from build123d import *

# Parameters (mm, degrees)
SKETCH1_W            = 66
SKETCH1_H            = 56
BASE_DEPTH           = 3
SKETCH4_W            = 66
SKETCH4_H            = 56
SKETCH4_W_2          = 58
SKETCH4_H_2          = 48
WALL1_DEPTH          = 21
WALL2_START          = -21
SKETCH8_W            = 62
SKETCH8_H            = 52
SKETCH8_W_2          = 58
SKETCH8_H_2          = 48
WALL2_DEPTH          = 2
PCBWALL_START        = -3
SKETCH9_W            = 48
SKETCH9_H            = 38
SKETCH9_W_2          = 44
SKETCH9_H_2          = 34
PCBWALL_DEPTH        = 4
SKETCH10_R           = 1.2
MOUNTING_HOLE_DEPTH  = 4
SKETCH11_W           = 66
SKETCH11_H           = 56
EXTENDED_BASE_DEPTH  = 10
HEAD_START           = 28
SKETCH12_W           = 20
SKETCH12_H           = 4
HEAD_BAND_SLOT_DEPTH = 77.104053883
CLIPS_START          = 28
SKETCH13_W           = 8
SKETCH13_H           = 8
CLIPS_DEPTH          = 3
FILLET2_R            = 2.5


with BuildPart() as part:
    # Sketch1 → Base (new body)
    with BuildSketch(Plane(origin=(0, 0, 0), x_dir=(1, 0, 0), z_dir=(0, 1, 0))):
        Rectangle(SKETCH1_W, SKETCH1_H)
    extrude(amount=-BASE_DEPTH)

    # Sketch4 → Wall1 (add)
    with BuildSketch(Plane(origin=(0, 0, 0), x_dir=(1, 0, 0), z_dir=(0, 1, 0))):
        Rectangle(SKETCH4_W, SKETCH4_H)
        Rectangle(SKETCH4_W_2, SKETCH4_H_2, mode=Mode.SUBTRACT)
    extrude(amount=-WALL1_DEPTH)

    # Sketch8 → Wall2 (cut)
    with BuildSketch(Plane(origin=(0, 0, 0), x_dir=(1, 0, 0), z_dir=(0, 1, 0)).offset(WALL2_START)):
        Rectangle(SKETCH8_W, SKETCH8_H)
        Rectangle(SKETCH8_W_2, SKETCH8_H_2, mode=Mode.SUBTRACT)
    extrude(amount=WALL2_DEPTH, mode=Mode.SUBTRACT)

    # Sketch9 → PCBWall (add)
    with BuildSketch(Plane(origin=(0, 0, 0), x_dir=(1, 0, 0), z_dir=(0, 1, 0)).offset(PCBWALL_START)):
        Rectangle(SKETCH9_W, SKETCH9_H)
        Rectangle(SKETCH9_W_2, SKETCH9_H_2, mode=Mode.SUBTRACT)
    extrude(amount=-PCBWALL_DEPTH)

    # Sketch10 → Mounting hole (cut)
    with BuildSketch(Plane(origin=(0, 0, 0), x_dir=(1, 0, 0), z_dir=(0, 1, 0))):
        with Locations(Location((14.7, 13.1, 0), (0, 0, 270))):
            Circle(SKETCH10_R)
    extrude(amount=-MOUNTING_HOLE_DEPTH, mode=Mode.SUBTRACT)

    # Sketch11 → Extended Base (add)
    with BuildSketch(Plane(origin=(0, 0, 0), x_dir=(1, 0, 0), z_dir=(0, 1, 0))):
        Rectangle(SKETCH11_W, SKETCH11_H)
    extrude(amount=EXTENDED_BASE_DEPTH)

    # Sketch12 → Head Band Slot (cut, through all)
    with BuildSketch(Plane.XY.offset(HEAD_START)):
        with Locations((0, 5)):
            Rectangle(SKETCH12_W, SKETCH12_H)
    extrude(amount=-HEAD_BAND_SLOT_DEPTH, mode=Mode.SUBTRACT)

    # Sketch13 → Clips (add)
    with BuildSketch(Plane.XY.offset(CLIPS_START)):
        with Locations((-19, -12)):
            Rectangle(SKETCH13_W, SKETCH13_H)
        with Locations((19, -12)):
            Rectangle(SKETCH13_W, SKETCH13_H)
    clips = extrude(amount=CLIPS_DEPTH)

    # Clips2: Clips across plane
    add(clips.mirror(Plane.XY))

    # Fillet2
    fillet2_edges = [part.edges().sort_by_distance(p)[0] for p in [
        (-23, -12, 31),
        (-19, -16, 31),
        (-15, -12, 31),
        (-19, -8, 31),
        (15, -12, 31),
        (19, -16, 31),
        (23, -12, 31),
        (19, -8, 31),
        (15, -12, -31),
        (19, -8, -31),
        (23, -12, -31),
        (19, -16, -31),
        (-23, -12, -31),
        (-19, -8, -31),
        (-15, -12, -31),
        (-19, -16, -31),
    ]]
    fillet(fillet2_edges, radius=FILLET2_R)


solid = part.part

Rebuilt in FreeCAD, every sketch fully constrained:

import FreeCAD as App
import Part
import Sketcher
Q = App.Units.Quantity


def edges_at(feature, points):
    """Names of the edges that pass closest to the given points."""
    edges = feature.Shape.Edges
    near = lambda p: min(range(len(edges)), key=lambda i: edges[i].distToShape(Part.Vertex(*p))[0])
    return sorted({f"Edge{near(p) + 1}" for p in points})

doc = App.newDocument("Part")
params = doc.addObject("Spreadsheet::Sheet", "Params")
for row, (alias, value) in enumerate([
    ("sketch1_width", "66 mm"),
    ("sketch1_height", "56 mm"),
    ("pad1_length", "3 mm"),
    ("sketch2_width", "66 mm"),
    ("sketch2_width2", "58 mm"),
    ("sketch2_height", "56 mm"),
    ("sketch2_height2", "48 mm"),
    ("pad2_length", "21 mm"),
    ("sketch3_width", "62 mm"),
    ("sketch3_width2", "58 mm"),
    ("sketch3_height", "52 mm"),
    ("sketch3_height2", "48 mm"),
    ("pocket1_length", "2 mm"),
    ("sketch4_width", "48 mm"),
    ("sketch4_width2", "44 mm"),
    ("sketch4_height", "38 mm"),
    ("sketch4_height2", "34 mm"),
    ("pad3_length", "4 mm"),
    ("sketch5_diameter", "2.4 mm"),
    ("pocket2_length", "4 mm"),
    ("sketch6_width", "66 mm"),
    ("sketch6_height", "56 mm"),
    ("pad4_length", "10 mm"),
    ("sketch7_width", "20 mm"),
    ("sketch7_height", "4 mm"),
    ("sketch8_width", "8 mm"),
    ("pad5_length", "3 mm"),
    ("fillet_radius", "2.5 mm"),
], start=1):
    params.set(f"A{row}", alias)
    params.set(f"B{row}", "=" + value)
    params.setAlias(f"B{row}", alias)

body = doc.addObject("PartDesign::Body", "Body")

# Sketch on XZ plane
sketch1 = body.newObject("Sketcher::SketchObject", "Sketch")
sketch1.AttachmentSupport = (doc.getObject("XZ_Plane"), [""])
sketch1.MapMode = "FlatFace"
sketch1.addGeometry([
    Part.LineSegment(App.Vector(-33, -28, 0), App.Vector(-33, 28, 0)),
    Part.LineSegment(App.Vector(-33, 28, 0), App.Vector(33, 28, 0)),
    Part.LineSegment(App.Vector(33, 28, 0), App.Vector(33, -28, 0)),
    Part.LineSegment(App.Vector(33, -28, 0), App.Vector(-33, -28, 0)),
], False)
sketch1.addConstraint([
    Sketcher.Constraint("Coincident", 0, 2, 1, 1),
    Sketcher.Constraint("Coincident", 1, 2, 2, 1),
    Sketcher.Constraint("Coincident", 2, 2, 3, 1),
    Sketcher.Constraint("Coincident", 3, 2, 0, 1),
    Sketcher.Constraint("Vertical", 0),
    Sketcher.Constraint("Horizontal", 1),
    Sketcher.Constraint("Vertical", 2),
    Sketcher.Constraint("Horizontal", 3),
    Sketcher.Constraint("Symmetric", 0, 2, 2, 2, -1, 1),
    Sketcher.Constraint("DistanceX", 1, 1, 1, 2, Q("66 mm")),
    Sketcher.Constraint("DistanceY", 0, 1, 0, 2, Q("56 mm")),
])
sketch1.setExpression("Constraints[9]", "Params.sketch1_width")
sketch1.setExpression("Constraints[10]", "Params.sketch1_height")
pad1 = body.newObject("PartDesign::Pad", "Pad")
pad1.Profile = sketch1
pad1.setExpression("Length", "Params.pad1_length")

# Sketch on XZ plane
sketch2 = body.newObject("Sketcher::SketchObject", "Sketch001")
sketch2.AttachmentSupport = (doc.getObject("XZ_Plane"), [""])
sketch2.MapMode = "FlatFace"
sketch2.addGeometry([
    Part.LineSegment(App.Vector(-33, -28, 0), App.Vector(-33, 28, 0)),  # 0
    Part.LineSegment(App.Vector(-33, 28, 0), App.Vector(33, 28, 0)),  # 1
    Part.LineSegment(App.Vector(33, 28, 0), App.Vector(33, -28, 0)),  # 2
    Part.LineSegment(App.Vector(33, -28, 0), App.Vector(-33, -28, 0)),  # 3
    Part.LineSegment(App.Vector(29, 24, 0), App.Vector(-29, 24, 0)),  # 4
    Part.LineSegment(App.Vector(-29, 24, 0), App.Vector(-29, -24, 0)),  # 5
    Part.LineSegment(App.Vector(-29, -24, 0), App.Vector(29, -24, 0)),  # 6
    Part.LineSegment(App.Vector(29, -24, 0), App.Vector(29, 24, 0)),  # 7
], False)
sketch2.addConstraint([
    Sketcher.Constraint("Coincident", 0, 2, 1, 1),
    Sketcher.Constraint("Coincident", 1, 2, 2, 1),
    Sketcher.Constraint("Coincident", 2, 2, 3, 1),
    Sketcher.Constraint("Coincident", 3, 2, 0, 1),
    Sketcher.Constraint("Coincident", 4, 2, 5, 1),
    Sketcher.Constraint("Coincident", 5, 2, 6, 1),
    Sketcher.Constraint("Coincident", 6, 2, 7, 1),
    Sketcher.Constraint("Coincident", 7, 2, 4, 1),
    Sketcher.Constraint("Vertical", 0),
    Sketcher.Constraint("Horizontal", 1),
    Sketcher.Constraint("Vertical", 2),
    Sketcher.Constraint("Horizontal", 3),
    Sketcher.Constraint("Horizontal", 4),
    Sketcher.Constraint("Vertical", 5),
    Sketcher.Constraint("Horizontal", 6),
    Sketcher.Constraint("Vertical", 7),
    Sketcher.Constraint("Symmetric", 0, 2, 2, 2, -1, 1),
    Sketcher.Constraint("Symmetric", 4, 2, 6, 2, -1, 1),
    Sketcher.Constraint("DistanceX", 1, 1, 1, 2, Q("66 mm")),
    Sketcher.Constraint("DistanceX", 4, 2, 4, 1, Q("58 mm")),
    Sketcher.Constraint("DistanceY", 0, 1, 0, 2, Q("56 mm")),
    Sketcher.Constraint("DistanceY", 5, 2, 5, 1, Q("48 mm")),
])
sketch2.setExpression("Constraints[18]", "Params.sketch2_width")
sketch2.setExpression("Constraints[19]", "Params.sketch2_width2")
sketch2.setExpression("Constraints[20]", "Params.sketch2_height")
sketch2.setExpression("Constraints[21]", "Params.sketch2_height2")
pad2 = body.newObject("PartDesign::Pad", "Pad001")
pad2.Profile = sketch2
pad2.setExpression("Length", "Params.pad2_length")

# Sketch on XZ plane
sketch3 = body.newObject("Sketcher::SketchObject", "Sketch002")
sketch3.AttachmentSupport = (doc.getObject("XZ_Plane"), [""])
sketch3.MapMode = "FlatFace"
sketch3.AttachmentOffset = App.Placement(App.Vector(0, 0, 21), App.Rotation())
sketch3.addGeometry([
    Part.LineSegment(App.Vector(-31, -26, 0), App.Vector(-31, 26, 0)),  # 0
    Part.LineSegment(App.Vector(-31, 26, 0), App.Vector(31, 26, 0)),  # 1
    Part.LineSegment(App.Vector(31, 26, 0), App.Vector(31, -26, 0)),  # 2
    Part.LineSegment(App.Vector(31, -26, 0), App.Vector(-31, -26, 0)),  # 3
    Part.LineSegment(App.Vector(29, 24, 0), App.Vector(-29, 24, 0)),  # 4
    Part.LineSegment(App.Vector(-29, 24, 0), App.Vector(-29, -24, 0)),  # 5
    Part.LineSegment(App.Vector(-29, -24, 0), App.Vector(29, -24, 0)),  # 6
    Part.LineSegment(App.Vector(29, -24, 0), App.Vector(29, 24, 0)),  # 7
], False)
sketch3.addConstraint([
    Sketcher.Constraint("Coincident", 0, 2, 1, 1),
    Sketcher.Constraint("Coincident", 1, 2, 2, 1),
    Sketcher.Constraint("Coincident", 2, 2, 3, 1),
    Sketcher.Constraint("Coincident", 3, 2, 0, 1),
    Sketcher.Constraint("Coincident", 4, 2, 5, 1),
    Sketcher.Constraint("Coincident", 5, 2, 6, 1),
    Sketcher.Constraint("Coincident", 6, 2, 7, 1),
    Sketcher.Constraint("Coincident", 7, 2, 4, 1),
    Sketcher.Constraint("Vertical", 0),
    Sketcher.Constraint("Horizontal", 1),
    Sketcher.Constraint("Vertical", 2),
    Sketcher.Constraint("Horizontal", 3),
    Sketcher.Constraint("Horizontal", 4),
    Sketcher.Constraint("Vertical", 5),
    Sketcher.Constraint("Horizontal", 6),
    Sketcher.Constraint("Vertical", 7),
    Sketcher.Constraint("Symmetric", 0, 2, 2, 2, -1, 1),
    Sketcher.Constraint("Symmetric", 4, 2, 6, 2, -1, 1),
    Sketcher.Constraint("DistanceX", 1, 1, 1, 2, Q("62 mm")),
    Sketcher.Constraint("DistanceX", 4, 2, 4, 1, Q("58 mm")),
    Sketcher.Constraint("DistanceY", 0, 1, 0, 2, Q("52 mm")),
    Sketcher.Constraint("DistanceY", 5, 2, 5, 1, Q("48 mm")),
])
sketch3.setExpression("Constraints[18]", "Params.sketch3_width")
sketch3.setExpression("Constraints[19]", "Params.sketch3_width2")
sketch3.setExpression("Constraints[20]", "Params.sketch3_height")
sketch3.setExpression("Constraints[21]", "Params.sketch3_height2")
pocket1 = body.newObject("PartDesign::Pocket", "Pocket")
pocket1.Profile = sketch3
pocket1.setExpression("Length", "Params.pocket1_length")

# Sketch on XZ plane
sketch4 = body.newObject("Sketcher::SketchObject", "Sketch003")
sketch4.AttachmentSupport = (doc.getObject("XZ_Plane"), [""])
sketch4.MapMode = "FlatFace"
sketch4.AttachmentOffset = App.Placement(App.Vector(0, 0, 3), App.Rotation())
sketch4.addGeometry([
    Part.LineSegment(App.Vector(-24, -19, 0), App.Vector(-24, 19, 0)),  # 0
    Part.LineSegment(App.Vector(-24, 19, 0), App.Vector(24, 19, 0)),  # 1
    Part.LineSegment(App.Vector(24, 19, 0), App.Vector(24, -19, 0)),  # 2
    Part.LineSegment(App.Vector(24, -19, 0), App.Vector(-24, -19, 0)),  # 3
    Part.LineSegment(App.Vector(22, 17, 0), App.Vector(-22, 17, 0)),  # 4
    Part.LineSegment(App.Vector(-22, 17, 0), App.Vector(-22, -17, 0)),  # 5
    Part.LineSegment(App.Vector(-22, -17, 0), App.Vector(22, -17, 0)),  # 6
    Part.LineSegment(App.Vector(22, -17, 0), App.Vector(22, 17, 0)),  # 7
], False)
sketch4.addConstraint([
    Sketcher.Constraint("Coincident", 0, 2, 1, 1),
    Sketcher.Constraint("Coincident", 1, 2, 2, 1),
    Sketcher.Constraint("Coincident", 2, 2, 3, 1),
    Sketcher.Constraint("Coincident", 3, 2, 0, 1),
    Sketcher.Constraint("Coincident", 4, 2, 5, 1),
    Sketcher.Constraint("Coincident", 5, 2, 6, 1),
    Sketcher.Constraint("Coincident", 6, 2, 7, 1),
    Sketcher.Constraint("Coincident", 7, 2, 4, 1),
    Sketcher.Constraint("Vertical", 0),
    Sketcher.Constraint("Horizontal", 1),
    Sketcher.Constraint("Vertical", 2),
    Sketcher.Constraint("Horizontal", 3),
    Sketcher.Constraint("Horizontal", 4),
    Sketcher.Constraint("Vertical", 5),
    Sketcher.Constraint("Horizontal", 6),
    Sketcher.Constraint("Vertical", 7),
    Sketcher.Constraint("Symmetric", 0, 2, 2, 2, -1, 1),
    Sketcher.Constraint("Symmetric", 4, 2, 6, 2, -1, 1),
    Sketcher.Constraint("DistanceX", 1, 1, 1, 2, Q("48 mm")),
    Sketcher.Constraint("DistanceX", 4, 2, 4, 1, Q("44 mm")),
    Sketcher.Constraint("DistanceY", 0, 1, 0, 2, Q("38 mm")),
    Sketcher.Constraint("DistanceY", 5, 2, 5, 1, Q("34 mm")),
])
sketch4.setExpression("Constraints[18]", "Params.sketch4_width")
sketch4.setExpression("Constraints[19]", "Params.sketch4_width2")
sketch4.setExpression("Constraints[20]", "Params.sketch4_height")
sketch4.setExpression("Constraints[21]", "Params.sketch4_height2")
pad3 = body.newObject("PartDesign::Pad", "Pad002")
pad3.Profile = sketch4
pad3.setExpression("Length", "Params.pad3_length")

# Sketch on XZ plane
sketch5 = body.newObject("Sketcher::SketchObject", "Sketch004")
sketch5.AttachmentSupport = (doc.getObject("XZ_Plane"), [""])
sketch5.MapMode = "FlatFace"
sketch5.addGeometry(Part.Circle(App.Vector(14.7, -13.1, 0), App.Vector(0, 0, 1), 1.2), False)
sketch5.addConstraint([
    Sketcher.Constraint("Diameter", 0, Q("2.4 mm")),
    Sketcher.Constraint("DistanceX", -1, 1, 0, 3, Q("14.7 mm")),
    Sketcher.Constraint("DistanceY", 0, 3, -1, 1, Q("13.1 mm")),
])
sketch5.setExpression("Constraints[0]", "Params.sketch5_diameter")
pocket2 = body.newObject("PartDesign::Pocket", "Pocket001")
pocket2.Profile = sketch5
pocket2.setExpression("Length", "Params.pocket2_length")
pocket2.Reversed = True

# Sketch on XZ plane
sketch6 = body.newObject("Sketcher::SketchObject", "Sketch005")
sketch6.AttachmentSupport = (doc.getObject("XZ_Plane"), [""])
sketch6.MapMode = "FlatFace"
sketch6.addGeometry([
    Part.LineSegment(App.Vector(-33, -28, 0), App.Vector(-33, 28, 0)),
    Part.LineSegment(App.Vector(-33, 28, 0), App.Vector(33, 28, 0)),
    Part.LineSegment(App.Vector(33, 28, 0), App.Vector(33, -28, 0)),
    Part.LineSegment(App.Vector(33, -28, 0), App.Vector(-33, -28, 0)),
], False)
sketch6.addConstraint([
    Sketcher.Constraint("Coincident", 0, 2, 1, 1),
    Sketcher.Constraint("Coincident", 1, 2, 2, 1),
    Sketcher.Constraint("Coincident", 2, 2, 3, 1),
    Sketcher.Constraint("Coincident", 3, 2, 0, 1),
    Sketcher.Constraint("Vertical", 0),
    Sketcher.Constraint("Horizontal", 1),
    Sketcher.Constraint("Vertical", 2),
    Sketcher.Constraint("Horizontal", 3),
    Sketcher.Constraint("Symmetric", 0, 2, 2, 2, -1, 1),
    Sketcher.Constraint("DistanceX", 1, 1, 1, 2, Q("66 mm")),
    Sketcher.Constraint("DistanceY", 0, 1, 0, 2, Q("56 mm")),
])
sketch6.setExpression("Constraints[9]", "Params.sketch6_width")
sketch6.setExpression("Constraints[10]", "Params.sketch6_height")
pad4 = body.newObject("PartDesign::Pad", "Pad003")
pad4.Profile = sketch6
pad4.setExpression("Length", "Params.pad4_length")
pad4.Reversed = True

# Sketch on XY plane
sketch7 = body.newObject("Sketcher::SketchObject", "Sketch006")
sketch7.AttachmentSupport = (doc.getObject("XY_Plane"), [""])
sketch7.MapMode = "FlatFace"
sketch7.AttachmentOffset = App.Placement(App.Vector(0, 0, 28), App.Rotation())
sketch7.addGeometry([
    Part.LineSegment(App.Vector(-10, 7, 0), App.Vector(-10, 3, 0)),
    Part.LineSegment(App.Vector(-10, 3, 0), App.Vector(10, 3, 0)),
    Part.LineSegment(App.Vector(10, 3, 0), App.Vector(10, 7, 0)),
    Part.LineSegment(App.Vector(10, 7, 0), App.Vector(-10, 7, 0)),
], False)
sketch7.addConstraint([
    Sketcher.Constraint("Coincident", 0, 2, 1, 1),
    Sketcher.Constraint("Coincident", 1, 2, 2, 1),
    Sketcher.Constraint("Coincident", 2, 2, 3, 1),
    Sketcher.Constraint("Coincident", 3, 2, 0, 1),
    Sketcher.Constraint("Vertical", 0),
    Sketcher.Constraint("Horizontal", 1),
    Sketcher.Constraint("Vertical", 2),
    Sketcher.Constraint("Horizontal", 3),
    Sketcher.Constraint("DistanceX", 1, 1, 1, 2, Q("20 mm")),
    Sketcher.Constraint("DistanceY", 0, 2, 0, 1, Q("4 mm")),
    Sketcher.Constraint("DistanceX", 0, 2, -1, 1, Q("10 mm")),
    Sketcher.Constraint("DistanceY", -1, 1, 0, 2, Q("3 mm")),
])
sketch7.setExpression("Constraints[8]", "Params.sketch7_width")
sketch7.setExpression("Constraints[9]", "Params.sketch7_height")
pocket3 = body.newObject("PartDesign::Pocket", "Pocket002")
pocket3.Profile = sketch7
pocket3.Type = "ThroughAll"

# Sketch on XY plane
sketch8 = body.newObject("Sketcher::SketchObject", "Sketch007")
sketch8.AttachmentSupport = (doc.getObject("XY_Plane"), [""])
sketch8.MapMode = "FlatFace"
sketch8.AttachmentOffset = App.Placement(App.Vector(0, 0, 28), App.Rotation())
sketch8.addGeometry([
    Part.LineSegment(App.Vector(-23, -8, 0), App.Vector(-23, -16, 0)),  # 0
    Part.LineSegment(App.Vector(-23, -16, 0), App.Vector(-15, -16, 0)),  # 1
    Part.LineSegment(App.Vector(-15, -16, 0), App.Vector(-15, -8, 0)),  # 2
    Part.LineSegment(App.Vector(-15, -8, 0), App.Vector(-23, -8, 0)),  # 3
    Part.LineSegment(App.Vector(15, -8, 0), App.Vector(15, -16, 0)),  # 4
    Part.LineSegment(App.Vector(15, -16, 0), App.Vector(23, -16, 0)),  # 5
    Part.LineSegment(App.Vector(23, -16, 0), App.Vector(23, -8, 0)),  # 6
    Part.LineSegment(App.Vector(23, -8, 0), App.Vector(15, -8, 0)),  # 7
], False)
sketch8.addConstraint([
    Sketcher.Constraint("Coincident", 0, 2, 1, 1),
    Sketcher.Constraint("Coincident", 1, 2, 2, 1),
    Sketcher.Constraint("Coincident", 2, 2, 3, 1),
    Sketcher.Constraint("Coincident", 3, 2, 0, 1),
    Sketcher.Constraint("Coincident", 4, 2, 5, 1),
    Sketcher.Constraint("Coincident", 5, 2, 6, 1),
    Sketcher.Constraint("Coincident", 6, 2, 7, 1),
    Sketcher.Constraint("Coincident", 7, 2, 4, 1),
    Sketcher.Constraint("Vertical", 0),
    Sketcher.Constraint("Horizontal", 1),
    Sketcher.Constraint("Vertical", 2),
    Sketcher.Constraint("Horizontal", 3),
    Sketcher.Constraint("Vertical", 4),
    Sketcher.Constraint("Horizontal", 5),
    Sketcher.Constraint("Vertical", 6),
    Sketcher.Constraint("Horizontal", 7),
    Sketcher.Constraint("Symmetric", 1, 2, 4, 2, -2),
    Sketcher.Constraint("Symmetric", 3, 2, 6, 2, -2),
    Sketcher.Constraint("Equal", 7, 0),
    Sketcher.Constraint("DistanceX", 1, 1, 1, 2, Q("8 mm")),
    Sketcher.Constraint("DistanceX", 0, 2, -1, 1, Q("23 mm")),
    Sketcher.Constraint("DistanceY", 0, 2, -1, 1, Q("16 mm")),
])
sketch8.setExpression("Constraints[19]", "Params.sketch8_width")
pad5 = body.newObject("PartDesign::Pad", "Pad004")
pad5.Profile = sketch8
pad5.setExpression("Length", "Params.pad5_length")
doc.recompute()

mirrored = body.newObject("PartDesign::Mirrored", "Mirrored")
mirrored.Originals = [pad5]
mirrored.MirrorPlane = (doc.getObject("XY_Plane"), [""])
body.Tip = mirrored
doc.recompute()

fillet = body.newObject("PartDesign::Fillet", "Fillet")
fillet.Base = (mirrored, edges_at(mirrored, [
    (-23, -12, 31),
    (-19, -16, 31),
    (-15, -12, 31),
    (-19, -8, 31),
    (15, -12, 31),
    (19, -16, 31),
    (23, -12, 31),
    (19, -8, 31),
    (15, -12, -31),
    (19, -8, -31),
    (23, -12, -31),
    (19, -16, -31),
    (-23, -12, -31),
    (-19, -8, -31),
    (-15, -12, -31),
    (-19, -16, -31),
]))
fillet.setExpression("Radius", "Params.fillet_radius")

doc.recompute()
